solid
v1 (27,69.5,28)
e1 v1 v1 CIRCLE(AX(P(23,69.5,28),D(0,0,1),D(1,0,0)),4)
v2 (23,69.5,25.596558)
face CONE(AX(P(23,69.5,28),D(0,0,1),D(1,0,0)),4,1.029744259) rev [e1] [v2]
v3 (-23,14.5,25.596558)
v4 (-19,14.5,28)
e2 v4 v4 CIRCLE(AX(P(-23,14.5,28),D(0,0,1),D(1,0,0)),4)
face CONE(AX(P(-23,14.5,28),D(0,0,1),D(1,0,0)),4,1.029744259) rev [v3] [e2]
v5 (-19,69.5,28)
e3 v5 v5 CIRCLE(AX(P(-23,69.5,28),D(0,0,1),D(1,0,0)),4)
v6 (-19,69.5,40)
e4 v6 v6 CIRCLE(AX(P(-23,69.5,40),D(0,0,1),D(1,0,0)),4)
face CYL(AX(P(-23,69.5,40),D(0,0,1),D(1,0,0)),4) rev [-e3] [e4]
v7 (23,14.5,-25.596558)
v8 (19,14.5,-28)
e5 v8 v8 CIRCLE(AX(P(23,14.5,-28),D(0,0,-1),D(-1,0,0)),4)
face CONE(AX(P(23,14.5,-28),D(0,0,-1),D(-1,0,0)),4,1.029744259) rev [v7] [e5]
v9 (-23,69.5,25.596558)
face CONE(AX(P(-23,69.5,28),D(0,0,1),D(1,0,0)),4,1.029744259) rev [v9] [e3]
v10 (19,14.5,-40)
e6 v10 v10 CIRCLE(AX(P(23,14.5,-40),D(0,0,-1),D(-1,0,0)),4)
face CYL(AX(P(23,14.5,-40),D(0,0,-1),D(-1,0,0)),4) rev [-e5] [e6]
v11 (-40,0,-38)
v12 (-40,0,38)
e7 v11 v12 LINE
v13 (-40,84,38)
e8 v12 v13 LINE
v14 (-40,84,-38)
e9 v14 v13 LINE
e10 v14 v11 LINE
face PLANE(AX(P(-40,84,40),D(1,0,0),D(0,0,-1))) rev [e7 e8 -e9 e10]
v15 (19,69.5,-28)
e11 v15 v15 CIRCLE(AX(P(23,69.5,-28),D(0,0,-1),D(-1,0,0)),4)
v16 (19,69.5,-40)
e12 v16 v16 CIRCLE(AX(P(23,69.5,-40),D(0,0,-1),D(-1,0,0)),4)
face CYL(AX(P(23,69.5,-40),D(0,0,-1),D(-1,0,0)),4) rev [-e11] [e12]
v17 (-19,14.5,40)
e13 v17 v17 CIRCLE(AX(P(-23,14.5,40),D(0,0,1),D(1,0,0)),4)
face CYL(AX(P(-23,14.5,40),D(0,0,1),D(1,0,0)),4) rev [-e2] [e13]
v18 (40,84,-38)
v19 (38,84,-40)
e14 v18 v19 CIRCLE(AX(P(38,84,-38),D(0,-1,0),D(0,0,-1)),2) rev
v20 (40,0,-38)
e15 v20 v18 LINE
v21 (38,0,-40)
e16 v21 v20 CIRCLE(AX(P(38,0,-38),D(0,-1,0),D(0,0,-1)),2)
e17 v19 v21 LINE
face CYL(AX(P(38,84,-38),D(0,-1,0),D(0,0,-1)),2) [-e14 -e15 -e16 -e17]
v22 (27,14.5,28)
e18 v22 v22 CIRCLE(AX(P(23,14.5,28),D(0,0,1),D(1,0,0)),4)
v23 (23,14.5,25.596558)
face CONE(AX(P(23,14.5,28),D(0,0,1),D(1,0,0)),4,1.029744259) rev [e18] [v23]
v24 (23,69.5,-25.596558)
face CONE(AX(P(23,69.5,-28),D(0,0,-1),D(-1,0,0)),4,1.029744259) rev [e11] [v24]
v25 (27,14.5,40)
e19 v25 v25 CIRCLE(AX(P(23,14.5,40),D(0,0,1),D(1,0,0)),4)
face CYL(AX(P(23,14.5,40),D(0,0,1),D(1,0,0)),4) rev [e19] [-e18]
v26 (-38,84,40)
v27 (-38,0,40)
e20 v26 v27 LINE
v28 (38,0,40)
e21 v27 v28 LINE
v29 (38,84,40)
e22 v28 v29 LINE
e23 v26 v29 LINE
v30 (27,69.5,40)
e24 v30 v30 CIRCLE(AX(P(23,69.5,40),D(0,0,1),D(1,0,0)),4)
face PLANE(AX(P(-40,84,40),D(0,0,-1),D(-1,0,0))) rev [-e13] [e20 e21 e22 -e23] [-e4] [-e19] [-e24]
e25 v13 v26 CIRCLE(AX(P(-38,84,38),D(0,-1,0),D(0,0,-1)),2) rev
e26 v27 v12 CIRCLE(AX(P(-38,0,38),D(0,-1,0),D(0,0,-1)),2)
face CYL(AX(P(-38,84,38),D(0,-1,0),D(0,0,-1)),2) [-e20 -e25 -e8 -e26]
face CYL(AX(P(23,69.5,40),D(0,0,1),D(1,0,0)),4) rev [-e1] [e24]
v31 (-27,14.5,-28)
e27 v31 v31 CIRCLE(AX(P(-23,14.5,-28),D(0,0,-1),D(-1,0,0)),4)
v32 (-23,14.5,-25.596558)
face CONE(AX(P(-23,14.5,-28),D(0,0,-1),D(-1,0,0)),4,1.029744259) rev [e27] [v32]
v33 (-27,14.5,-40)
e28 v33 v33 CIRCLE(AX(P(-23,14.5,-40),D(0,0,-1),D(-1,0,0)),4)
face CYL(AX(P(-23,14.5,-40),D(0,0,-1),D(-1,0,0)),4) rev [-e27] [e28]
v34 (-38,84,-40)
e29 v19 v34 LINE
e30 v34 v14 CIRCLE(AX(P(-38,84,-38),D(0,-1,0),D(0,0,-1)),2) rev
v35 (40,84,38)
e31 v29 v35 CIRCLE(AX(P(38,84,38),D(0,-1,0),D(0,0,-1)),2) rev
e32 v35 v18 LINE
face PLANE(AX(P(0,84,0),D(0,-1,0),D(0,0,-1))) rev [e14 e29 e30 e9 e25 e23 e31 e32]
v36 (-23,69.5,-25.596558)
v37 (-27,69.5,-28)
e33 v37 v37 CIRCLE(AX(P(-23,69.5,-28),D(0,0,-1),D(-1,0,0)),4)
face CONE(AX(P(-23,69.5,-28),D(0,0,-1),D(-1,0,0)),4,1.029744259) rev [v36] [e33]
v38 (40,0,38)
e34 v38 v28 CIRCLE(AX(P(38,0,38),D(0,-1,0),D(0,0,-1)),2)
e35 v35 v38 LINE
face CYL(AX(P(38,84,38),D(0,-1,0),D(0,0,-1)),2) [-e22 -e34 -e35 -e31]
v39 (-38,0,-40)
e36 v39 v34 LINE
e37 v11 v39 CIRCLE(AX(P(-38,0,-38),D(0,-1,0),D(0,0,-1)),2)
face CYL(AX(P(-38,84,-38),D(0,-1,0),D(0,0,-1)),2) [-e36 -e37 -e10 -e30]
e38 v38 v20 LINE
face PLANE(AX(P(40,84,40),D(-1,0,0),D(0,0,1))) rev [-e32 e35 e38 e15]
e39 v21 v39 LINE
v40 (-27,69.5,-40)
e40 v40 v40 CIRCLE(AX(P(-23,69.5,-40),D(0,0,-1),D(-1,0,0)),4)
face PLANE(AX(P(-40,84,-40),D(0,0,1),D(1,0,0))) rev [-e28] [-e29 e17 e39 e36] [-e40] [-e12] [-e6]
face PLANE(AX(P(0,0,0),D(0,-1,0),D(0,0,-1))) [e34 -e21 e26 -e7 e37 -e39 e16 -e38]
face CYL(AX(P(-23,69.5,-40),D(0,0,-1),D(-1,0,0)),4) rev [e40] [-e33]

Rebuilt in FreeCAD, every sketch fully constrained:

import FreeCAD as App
import Part
import Sketcher
from FreeCAD import Vector
Q = App.Units.Quantity


def edges_at(feature, points):
    """Names of the edges that pass closest to the given points."""
    edges = feature.Shape.Edges
    near = lambda p: min(range(len(edges)), key=lambda i: edges[i].distToShape(Part.Vertex(*p))[0])
    return sorted({f"Edge{near(p) + 1}" for p in points})

doc = App.newDocument("Part")
params = doc.addObject("Spreadsheet::Sheet", "Params")
for row, (alias, value) in enumerate([
    ("sketch1_width", "80 mm"),
    ("pad1_length", "84 mm"),
    ("sketch2_width", "4 mm"),
    ("sketch2_height", "12 mm"),
    ("groove_angle", "360 deg"),
    ("linearpattern_pitch", "46 mm"),
    ("linearpattern2_pitch", "71.700767 mm"),
    ("linearpattern3_pitch", "55 mm"),
    ("sketch3_width", "4 mm"),
    ("sketch3_height", "12 mm"),
    ("groove2_angle", "360 deg"),
    ("sketch4_width", "4 mm"),
    ("sketch4_height", "12 mm"),
    ("groove3_angle", "360 deg"),
    ("sketch5_width", "4 mm"),
    ("sketch5_height", "12 mm"),
    ("groove4_angle", "360 deg"),
    ("fillet_radius", "2 mm"),
], start=1):
    params.set(f"A{row}", alias)
    params.set(f"B{row}", "=" + value)
    params.setAlias(f"B{row}", alias)

body = doc.addObject("PartDesign::Body", "Body")

# Sketch on XZ plane
sketch1 = doc.addObject("Sketcher::SketchObject", "Sketch")
body.addObject(sketch1)
sketch1.AttachmentSupport = (doc.XZ_Plane, [""])
sketch1.MapMode = "FlatFace"
sketch1.addGeometry([
    Part.LineSegment(Vector(-40, -40, 0), Vector(-40, 40, 0)),
    Part.LineSegment(Vector(-40, 40, 0), Vector(40, 40, 0)),
    Part.LineSegment(Vector(40, 40, 0), Vector(40, -40, 0)),
    Part.LineSegment(Vector(40, -40, 0), Vector(-40, -40, 0)),
], False)
sketch1.addConstraint([
    Sketcher.Constraint("Coincident", 0, 2, 1, 1),
    Sketcher.Constraint("Coincident", 1, 2, 2, 1),
    Sketcher.Constraint("Coincident", 2, 2, 3, 1),
    Sketcher.Constraint("Coincident", 3, 2, 0, 1),
    Sketcher.Constraint("Vertical", 0),
    Sketcher.Constraint("Horizontal", 1),
    Sketcher.Constraint("Vertical", 2),
    Sketcher.Constraint("Horizontal", 3),
    Sketcher.Constraint("Symmetric", 0, 2, 2, 2, -1, 1),
    Sketcher.Constraint("Equal", 3, 0),
    Sketcher.Constraint("DistanceX", 1, 1, 1, 2, Q("80 mm")),
])
sketch1.setExpression("Constraints[10]", "Params.sketch1_width")
pad1 = doc.addObject("PartDesign::Pad", "Pad")
body.addObject(pad1)
pad1.Profile = sketch1
pad1.setExpression("Length", "Params.pad1_length")
pad1.Reversed = True

# Sketch on YZ plane
sketch2 = doc.addObject("Sketcher::SketchObject", "Sketch001")
body.addObject(sketch2)
sketch2.AttachmentSupport = (doc.YZ_Plane, [""])
sketch2.MapMode = "FlatFace"
sketch2.AttachmentOffset = App.Placement(Vector(0, 0, -23), App.Rotation())
sketch2.addGeometry([
    Part.LineSegment(Vector(69.5, 25.596558, 0), Vector(69.5, 40, 0)),
    Part.LineSegment(Vector(69.5, 40, 0), Vector(65.5, 40, 0)),
    Part.LineSegment(Vector(65.5, 40, 0), Vector(65.5, 28, 0)),
    Part.LineSegment(Vector(65.5, 28, 0), Vector(69.5, 25.596558, 0)),
], False)
sketch2.addGeometry(Part.LineSegment(Vector(69.5, 40, 0), Vector(69.5, 25.596558, 0)), True)  # axis
sketch2.addConstraint([
    Sketcher.Constraint("Coincident", 0, 2, 1, 1),
    Sketcher.Constraint("Coincident", 1, 2, 2, 1),
    Sketcher.Constraint("Coincident", 2, 2, 3, 1),
    Sketcher.Constraint("Coincident", 3, 2, 0, 1),
    Sketcher.Constraint("Vertical", 0),
    Sketcher.Constraint("Horizontal", 1),
    Sketcher.Constraint("Vertical", 2),
    Sketcher.Constraint("Vertical", 4),
    Sketcher.Constraint("Coincident", 4, 1, 0, 2),
    Sketcher.Constraint("Equal", 0, 4),
    Sketcher.Constraint("DistanceX", 1, 2, 1, 1, Q("4 mm")),
    Sketcher.Constraint("DistanceY", 2, 2, 2, 1, Q("12 mm")),
    Sketcher.Constraint("Angle", 3, Q("-31 deg")),
    Sketcher.Constraint("DistanceY", -1, 1, 0, 2, Q("40 mm")),
    Sketcher.Constraint("DistanceX", -1, 1, 0, 2, Q("69.5 mm")),
])
sketch2.setExpression("Constraints[10]", "Params.sketch2_width")
sketch2.setExpression("Constraints[11]", "Params.sketch2_height")
groove = doc.addObject("PartDesign::Groove", "Groove")
body.addObject(groove)
groove.Profile = sketch2
groove.ReferenceAxis = (sketch2, ["Axis0"])
groove.setExpression("Angle", "Params.groove_angle")
doc.recompute()

linearpattern = doc.addObject("PartDesign::LinearPattern", "LinearPattern")
body.addObject(linearpattern)
linearpattern.Originals = [groove]
linearpattern.Direction = (doc.X_Axis, [""])
linearpattern.Mode = "offset"
linearpattern.setExpression("Offset", "Params.linearpattern_pitch")
linearpattern.Occurrences = 2
body.Tip = linearpattern
doc.recompute()

datumline = doc.addObject("PartDesign::Line", "DatumLine")
body.addObject(datumline)
datumline.Placement = App.Placement(Vector(0, 0, 0), App.Rotation(Vector(0, 0, 1), Vector(0.6415552, -0.76707687, 0)))
linearpattern2 = doc.addObject("PartDesign::LinearPattern", "LinearPattern001")
body.addObject(linearpattern2)
linearpattern2.Originals = [groove]
linearpattern2.Direction = (datumline, [""])
linearpattern2.Mode = "offset"
linearpattern2.setExpression("Offset", "Params.linearpattern2_pitch")
linearpattern2.Occurrences = 2
body.Tip = linearpattern2
doc.recompute()

linearpattern3 = doc.addObject("PartDesign::LinearPattern", "LinearPattern002")
body.addObject(linearpattern3)
linearpattern3.Originals = [groove]
linearpattern3.Direction = (doc.Y_Axis, [""])
linearpattern3.Mode = "offset"
linearpattern3.setExpression("Offset", "Params.linearpattern3_pitch")
linearpattern3.Occurrences = 2
linearpattern3.Reversed = True
body.Tip = linearpattern3
doc.recompute()

mirrored = doc.addObject("PartDesign::Mirrored", "Mirrored")
body.addObject(mirrored)
mirrored.Originals = [groove]
mirrored.MirrorPlane = (doc.XY_Plane, [""])
body.Tip = mirrored

# Sketch on YZ plane
sketch3 = doc.addObject("Sketcher::SketchObject", "Sketch002")
body.addObject(sketch3)
sketch3.AttachmentSupport = (doc.YZ_Plane, [""])
sketch3.MapMode = "FlatFace"
sketch3.AttachmentOffset = App.Placement(Vector(0, 0, 23), App.Rotation())
sketch3.addGeometry([
    Part.LineSegment(Vector(69.5, -40, 0), Vector(69.5, -25.596558, 0)),
    Part.LineSegment(Vector(69.5, -25.596558, 0), Vector(65.5, -28, 0)),
    Part.LineSegment(Vector(65.5, -28, 0), Vector(65.5, -40, 0)),
    Part.LineSegment(Vector(65.5, -40, 0), Vector(69.5, -40, 0)),
], False)
sketch3.addGeometry(Part.LineSegment(Vector(69.5, -25.596558, 0), Vector(69.5, -40, 0)), True)  # axis
sketch3.addConstraint([
    Sketcher.Constraint("Coincident", 0, 2, 1, 1),
    Sketcher.Constraint("Coincident", 1, 2, 2, 1),
    Sketcher.Constraint("Coincident", 2, 2, 3, 1),
    Sketcher.Constraint("Coincident", 3, 2, 0, 1),
    Sketcher.Constraint("Vertical", 0),
    Sketcher.Constraint("Vertical", 2),
    Sketcher.Constraint("Horizontal", 3),
    Sketcher.Constraint("Vertical", 4),
    Sketcher.Constraint("Coincident", 4, 1, 0, 2),
    Sketcher.Constraint("Horizontal", 2, 2, 4, 2),
    Sketcher.Constraint("DistanceX", 3, 1, 3, 2, Q("4 mm")),
    Sketcher.Constraint("DistanceY", 2, 2, 2, 1, Q("12 mm")),
    Sketcher.Constraint("Angle", 1, Q("-149 deg")),
    Sketcher.Constraint("DistanceY", 1, 2, -1, 1, Q("28 mm")),
    Sketcher.Constraint("DistanceX", -1, 1, 0, 2, Q("69.5 mm")),
])
sketch3.setExpression("Constraints[10]", "Params.sketch3_width")
sketch3.setExpression("Constraints[11]", "Params.sketch3_height")
groove2 = doc.addObject("PartDesign::Groove", "Groove001")
body.addObject(groove2)
groove2.Profile = sketch3
groove2.ReferenceAxis = (sketch3, ["Axis0"])
groove2.setExpression("Angle", "Params.groove2_angle")

# Sketch on YZ plane
sketch4 = doc.addObject("Sketcher::SketchObject", "Sketch003")
body.addObject(sketch4)
sketch4.AttachmentSupport = (doc.YZ_Plane, [""])
sketch4.MapMode = "FlatFace"
sketch4.AttachmentOffset = App.Placement(Vector(0, 0, 23), App.Rotation())
sketch4.addGeometry([
    Part.LineSegment(Vector(14.5, -40, 0), Vector(14.5, -25.596558, 0)),
    Part.LineSegment(Vector(14.5, -25.596558, 0), Vector(10.5, -28, 0)),
    Part.LineSegment(Vector(10.5, -28, 0), Vector(10.5, -40, 0)),
    Part.LineSegment(Vector(10.5, -40, 0), Vector(14.5, -40, 0)),
], False)
sketch4.addGeometry(Part.LineSegment(Vector(14.5, -25.596558, 0), Vector(14.5, -40, 0)), True)  # axis
sketch4.addConstraint([
    Sketcher.Constraint("Coincident", 0, 2, 1, 1),
    Sketcher.Constraint("Coincident", 1, 2, 2, 1),
    Sketcher.Constraint("Coincident", 2, 2, 3, 1),
    Sketcher.Constraint("Coincident", 3, 2, 0, 1),
    Sketcher.Constraint("Vertical", 0),
    Sketcher.Constraint("Vertical", 2),
    Sketcher.Constraint("Horizontal", 3),
    Sketcher.Constraint("Vertical", 4),
    Sketcher.Constraint("Coincident", 4, 1, 0, 2),
    Sketcher.Constraint("Horizontal", 2, 2, 4, 2),
    Sketcher.Constraint("DistanceX", 3, 1, 3, 2, Q("4 mm")),
    Sketcher.Constraint("DistanceY", 2, 2, 2, 1, Q("12 mm")),
    Sketcher.Constraint("Angle", 1, Q("-149 deg")),
    Sketcher.Constraint("DistanceY", 1, 2, -1, 1, Q("28 mm")),
    Sketcher.Constraint("DistanceX", -1, 1, 0, 2, Q("14.5 mm")),
])
sketch4.setExpression("Constraints[10]", "Params.sketch4_width")
sketch4.setExpression("Constraints[11]", "Params.sketch4_height")
groove3 = doc.addObject("PartDesign::Groove", "Groove002")
body.addObject(groove3)
groove3.Profile = sketch4
groove3.ReferenceAxis = (sketch4, ["Axis0"])
groove3.setExpression("Angle", "Params.groove3_angle")

# Sketch on YZ plane
sketch5 = doc.addObject("Sketcher::SketchObject", "Sketch004")
body.addObject(sketch5)
sketch5.AttachmentSupport = (doc.YZ_Plane, [""])
sketch5.MapMode = "FlatFace"
sketch5.AttachmentOffset = App.Placement(Vector(0, 0, -23), App.Rotation())
sketch5.addGeometry([
    Part.LineSegment(Vector(14.5, -40, 0), Vector(14.5, -25.596558, 0)),
    Part.LineSegment(Vector(14.5, -25.596558, 0), Vector(10.5, -28, 0)),
    Part.LineSegment(Vector(10.5, -28, 0), Vector(10.5, -40, 0)),
    Part.LineSegment(Vector(10.5, -40, 0), Vector(14.5, -40, 0)),
], False)
sketch5.addGeometry(Part.LineSegment(Vector(14.5, -25.596558, 0), Vector(14.5, -40, 0)), True)  # axis
sketch5.addConstraint([
    Sketcher.Constraint("Coincident", 0, 2, 1, 1),
    Sketcher.Constraint("Coincident", 1, 2, 2, 1),
    Sketcher.Constraint("Coincident", 2, 2, 3, 1),
    Sketcher.Constraint("Coincident", 3, 2, 0, 1),
    Sketcher.Constraint("Vertical", 0),
    Sketcher.Constraint("Vertical", 2),
    Sketcher.Constraint("Horizontal", 3),
    Sketcher.Constraint("Vertical", 4),
    Sketcher.Constraint("Coincident", 4, 1, 0, 2),
    Sketcher.Constraint("Horizontal", 2, 2, 4, 2),
    Sketcher.Constraint("DistanceX", 3, 1, 3, 2, Q("4 mm")),
    Sketcher.Constraint("DistanceY", 2, 2, 2, 1, Q("12 mm")),
    Sketcher.Constraint("Angle", 1, Q("-149 deg")),
    Sketcher.Constraint("DistanceY", 1, 2, -1, 1, Q("28 mm")),
    Sketcher.Constraint("DistanceX", -1, 1, 0, 2, Q("14.5 mm")),
])
sketch5.setExpression("Constraints[10]", "Params.sketch5_width")
sketch5.setExpression("Constraints[11]", "Params.sketch5_height")
groove4 = doc.addObject("PartDesign::Groove", "Groove003")
body.addObject(groove4)
groove4.Profile = sketch5
groove4.ReferenceAxis = (sketch5, ["Axis0"])
groove4.setExpression("Angle", "Params.groove4_angle")
doc.recompute()

fillet = doc.addObject("PartDesign::Fillet", "Fillet")
body.addObject(fillet)
fillet.Base = (groove4, edges_at(groove4, [
    (40, 42, 40),
    (-40, 42, 40),
    (-40, 42, -40),
    (40, 42, -40),
]))
fillet.setExpression("Radius", "Params.fillet_radius")

doc.recompute()
